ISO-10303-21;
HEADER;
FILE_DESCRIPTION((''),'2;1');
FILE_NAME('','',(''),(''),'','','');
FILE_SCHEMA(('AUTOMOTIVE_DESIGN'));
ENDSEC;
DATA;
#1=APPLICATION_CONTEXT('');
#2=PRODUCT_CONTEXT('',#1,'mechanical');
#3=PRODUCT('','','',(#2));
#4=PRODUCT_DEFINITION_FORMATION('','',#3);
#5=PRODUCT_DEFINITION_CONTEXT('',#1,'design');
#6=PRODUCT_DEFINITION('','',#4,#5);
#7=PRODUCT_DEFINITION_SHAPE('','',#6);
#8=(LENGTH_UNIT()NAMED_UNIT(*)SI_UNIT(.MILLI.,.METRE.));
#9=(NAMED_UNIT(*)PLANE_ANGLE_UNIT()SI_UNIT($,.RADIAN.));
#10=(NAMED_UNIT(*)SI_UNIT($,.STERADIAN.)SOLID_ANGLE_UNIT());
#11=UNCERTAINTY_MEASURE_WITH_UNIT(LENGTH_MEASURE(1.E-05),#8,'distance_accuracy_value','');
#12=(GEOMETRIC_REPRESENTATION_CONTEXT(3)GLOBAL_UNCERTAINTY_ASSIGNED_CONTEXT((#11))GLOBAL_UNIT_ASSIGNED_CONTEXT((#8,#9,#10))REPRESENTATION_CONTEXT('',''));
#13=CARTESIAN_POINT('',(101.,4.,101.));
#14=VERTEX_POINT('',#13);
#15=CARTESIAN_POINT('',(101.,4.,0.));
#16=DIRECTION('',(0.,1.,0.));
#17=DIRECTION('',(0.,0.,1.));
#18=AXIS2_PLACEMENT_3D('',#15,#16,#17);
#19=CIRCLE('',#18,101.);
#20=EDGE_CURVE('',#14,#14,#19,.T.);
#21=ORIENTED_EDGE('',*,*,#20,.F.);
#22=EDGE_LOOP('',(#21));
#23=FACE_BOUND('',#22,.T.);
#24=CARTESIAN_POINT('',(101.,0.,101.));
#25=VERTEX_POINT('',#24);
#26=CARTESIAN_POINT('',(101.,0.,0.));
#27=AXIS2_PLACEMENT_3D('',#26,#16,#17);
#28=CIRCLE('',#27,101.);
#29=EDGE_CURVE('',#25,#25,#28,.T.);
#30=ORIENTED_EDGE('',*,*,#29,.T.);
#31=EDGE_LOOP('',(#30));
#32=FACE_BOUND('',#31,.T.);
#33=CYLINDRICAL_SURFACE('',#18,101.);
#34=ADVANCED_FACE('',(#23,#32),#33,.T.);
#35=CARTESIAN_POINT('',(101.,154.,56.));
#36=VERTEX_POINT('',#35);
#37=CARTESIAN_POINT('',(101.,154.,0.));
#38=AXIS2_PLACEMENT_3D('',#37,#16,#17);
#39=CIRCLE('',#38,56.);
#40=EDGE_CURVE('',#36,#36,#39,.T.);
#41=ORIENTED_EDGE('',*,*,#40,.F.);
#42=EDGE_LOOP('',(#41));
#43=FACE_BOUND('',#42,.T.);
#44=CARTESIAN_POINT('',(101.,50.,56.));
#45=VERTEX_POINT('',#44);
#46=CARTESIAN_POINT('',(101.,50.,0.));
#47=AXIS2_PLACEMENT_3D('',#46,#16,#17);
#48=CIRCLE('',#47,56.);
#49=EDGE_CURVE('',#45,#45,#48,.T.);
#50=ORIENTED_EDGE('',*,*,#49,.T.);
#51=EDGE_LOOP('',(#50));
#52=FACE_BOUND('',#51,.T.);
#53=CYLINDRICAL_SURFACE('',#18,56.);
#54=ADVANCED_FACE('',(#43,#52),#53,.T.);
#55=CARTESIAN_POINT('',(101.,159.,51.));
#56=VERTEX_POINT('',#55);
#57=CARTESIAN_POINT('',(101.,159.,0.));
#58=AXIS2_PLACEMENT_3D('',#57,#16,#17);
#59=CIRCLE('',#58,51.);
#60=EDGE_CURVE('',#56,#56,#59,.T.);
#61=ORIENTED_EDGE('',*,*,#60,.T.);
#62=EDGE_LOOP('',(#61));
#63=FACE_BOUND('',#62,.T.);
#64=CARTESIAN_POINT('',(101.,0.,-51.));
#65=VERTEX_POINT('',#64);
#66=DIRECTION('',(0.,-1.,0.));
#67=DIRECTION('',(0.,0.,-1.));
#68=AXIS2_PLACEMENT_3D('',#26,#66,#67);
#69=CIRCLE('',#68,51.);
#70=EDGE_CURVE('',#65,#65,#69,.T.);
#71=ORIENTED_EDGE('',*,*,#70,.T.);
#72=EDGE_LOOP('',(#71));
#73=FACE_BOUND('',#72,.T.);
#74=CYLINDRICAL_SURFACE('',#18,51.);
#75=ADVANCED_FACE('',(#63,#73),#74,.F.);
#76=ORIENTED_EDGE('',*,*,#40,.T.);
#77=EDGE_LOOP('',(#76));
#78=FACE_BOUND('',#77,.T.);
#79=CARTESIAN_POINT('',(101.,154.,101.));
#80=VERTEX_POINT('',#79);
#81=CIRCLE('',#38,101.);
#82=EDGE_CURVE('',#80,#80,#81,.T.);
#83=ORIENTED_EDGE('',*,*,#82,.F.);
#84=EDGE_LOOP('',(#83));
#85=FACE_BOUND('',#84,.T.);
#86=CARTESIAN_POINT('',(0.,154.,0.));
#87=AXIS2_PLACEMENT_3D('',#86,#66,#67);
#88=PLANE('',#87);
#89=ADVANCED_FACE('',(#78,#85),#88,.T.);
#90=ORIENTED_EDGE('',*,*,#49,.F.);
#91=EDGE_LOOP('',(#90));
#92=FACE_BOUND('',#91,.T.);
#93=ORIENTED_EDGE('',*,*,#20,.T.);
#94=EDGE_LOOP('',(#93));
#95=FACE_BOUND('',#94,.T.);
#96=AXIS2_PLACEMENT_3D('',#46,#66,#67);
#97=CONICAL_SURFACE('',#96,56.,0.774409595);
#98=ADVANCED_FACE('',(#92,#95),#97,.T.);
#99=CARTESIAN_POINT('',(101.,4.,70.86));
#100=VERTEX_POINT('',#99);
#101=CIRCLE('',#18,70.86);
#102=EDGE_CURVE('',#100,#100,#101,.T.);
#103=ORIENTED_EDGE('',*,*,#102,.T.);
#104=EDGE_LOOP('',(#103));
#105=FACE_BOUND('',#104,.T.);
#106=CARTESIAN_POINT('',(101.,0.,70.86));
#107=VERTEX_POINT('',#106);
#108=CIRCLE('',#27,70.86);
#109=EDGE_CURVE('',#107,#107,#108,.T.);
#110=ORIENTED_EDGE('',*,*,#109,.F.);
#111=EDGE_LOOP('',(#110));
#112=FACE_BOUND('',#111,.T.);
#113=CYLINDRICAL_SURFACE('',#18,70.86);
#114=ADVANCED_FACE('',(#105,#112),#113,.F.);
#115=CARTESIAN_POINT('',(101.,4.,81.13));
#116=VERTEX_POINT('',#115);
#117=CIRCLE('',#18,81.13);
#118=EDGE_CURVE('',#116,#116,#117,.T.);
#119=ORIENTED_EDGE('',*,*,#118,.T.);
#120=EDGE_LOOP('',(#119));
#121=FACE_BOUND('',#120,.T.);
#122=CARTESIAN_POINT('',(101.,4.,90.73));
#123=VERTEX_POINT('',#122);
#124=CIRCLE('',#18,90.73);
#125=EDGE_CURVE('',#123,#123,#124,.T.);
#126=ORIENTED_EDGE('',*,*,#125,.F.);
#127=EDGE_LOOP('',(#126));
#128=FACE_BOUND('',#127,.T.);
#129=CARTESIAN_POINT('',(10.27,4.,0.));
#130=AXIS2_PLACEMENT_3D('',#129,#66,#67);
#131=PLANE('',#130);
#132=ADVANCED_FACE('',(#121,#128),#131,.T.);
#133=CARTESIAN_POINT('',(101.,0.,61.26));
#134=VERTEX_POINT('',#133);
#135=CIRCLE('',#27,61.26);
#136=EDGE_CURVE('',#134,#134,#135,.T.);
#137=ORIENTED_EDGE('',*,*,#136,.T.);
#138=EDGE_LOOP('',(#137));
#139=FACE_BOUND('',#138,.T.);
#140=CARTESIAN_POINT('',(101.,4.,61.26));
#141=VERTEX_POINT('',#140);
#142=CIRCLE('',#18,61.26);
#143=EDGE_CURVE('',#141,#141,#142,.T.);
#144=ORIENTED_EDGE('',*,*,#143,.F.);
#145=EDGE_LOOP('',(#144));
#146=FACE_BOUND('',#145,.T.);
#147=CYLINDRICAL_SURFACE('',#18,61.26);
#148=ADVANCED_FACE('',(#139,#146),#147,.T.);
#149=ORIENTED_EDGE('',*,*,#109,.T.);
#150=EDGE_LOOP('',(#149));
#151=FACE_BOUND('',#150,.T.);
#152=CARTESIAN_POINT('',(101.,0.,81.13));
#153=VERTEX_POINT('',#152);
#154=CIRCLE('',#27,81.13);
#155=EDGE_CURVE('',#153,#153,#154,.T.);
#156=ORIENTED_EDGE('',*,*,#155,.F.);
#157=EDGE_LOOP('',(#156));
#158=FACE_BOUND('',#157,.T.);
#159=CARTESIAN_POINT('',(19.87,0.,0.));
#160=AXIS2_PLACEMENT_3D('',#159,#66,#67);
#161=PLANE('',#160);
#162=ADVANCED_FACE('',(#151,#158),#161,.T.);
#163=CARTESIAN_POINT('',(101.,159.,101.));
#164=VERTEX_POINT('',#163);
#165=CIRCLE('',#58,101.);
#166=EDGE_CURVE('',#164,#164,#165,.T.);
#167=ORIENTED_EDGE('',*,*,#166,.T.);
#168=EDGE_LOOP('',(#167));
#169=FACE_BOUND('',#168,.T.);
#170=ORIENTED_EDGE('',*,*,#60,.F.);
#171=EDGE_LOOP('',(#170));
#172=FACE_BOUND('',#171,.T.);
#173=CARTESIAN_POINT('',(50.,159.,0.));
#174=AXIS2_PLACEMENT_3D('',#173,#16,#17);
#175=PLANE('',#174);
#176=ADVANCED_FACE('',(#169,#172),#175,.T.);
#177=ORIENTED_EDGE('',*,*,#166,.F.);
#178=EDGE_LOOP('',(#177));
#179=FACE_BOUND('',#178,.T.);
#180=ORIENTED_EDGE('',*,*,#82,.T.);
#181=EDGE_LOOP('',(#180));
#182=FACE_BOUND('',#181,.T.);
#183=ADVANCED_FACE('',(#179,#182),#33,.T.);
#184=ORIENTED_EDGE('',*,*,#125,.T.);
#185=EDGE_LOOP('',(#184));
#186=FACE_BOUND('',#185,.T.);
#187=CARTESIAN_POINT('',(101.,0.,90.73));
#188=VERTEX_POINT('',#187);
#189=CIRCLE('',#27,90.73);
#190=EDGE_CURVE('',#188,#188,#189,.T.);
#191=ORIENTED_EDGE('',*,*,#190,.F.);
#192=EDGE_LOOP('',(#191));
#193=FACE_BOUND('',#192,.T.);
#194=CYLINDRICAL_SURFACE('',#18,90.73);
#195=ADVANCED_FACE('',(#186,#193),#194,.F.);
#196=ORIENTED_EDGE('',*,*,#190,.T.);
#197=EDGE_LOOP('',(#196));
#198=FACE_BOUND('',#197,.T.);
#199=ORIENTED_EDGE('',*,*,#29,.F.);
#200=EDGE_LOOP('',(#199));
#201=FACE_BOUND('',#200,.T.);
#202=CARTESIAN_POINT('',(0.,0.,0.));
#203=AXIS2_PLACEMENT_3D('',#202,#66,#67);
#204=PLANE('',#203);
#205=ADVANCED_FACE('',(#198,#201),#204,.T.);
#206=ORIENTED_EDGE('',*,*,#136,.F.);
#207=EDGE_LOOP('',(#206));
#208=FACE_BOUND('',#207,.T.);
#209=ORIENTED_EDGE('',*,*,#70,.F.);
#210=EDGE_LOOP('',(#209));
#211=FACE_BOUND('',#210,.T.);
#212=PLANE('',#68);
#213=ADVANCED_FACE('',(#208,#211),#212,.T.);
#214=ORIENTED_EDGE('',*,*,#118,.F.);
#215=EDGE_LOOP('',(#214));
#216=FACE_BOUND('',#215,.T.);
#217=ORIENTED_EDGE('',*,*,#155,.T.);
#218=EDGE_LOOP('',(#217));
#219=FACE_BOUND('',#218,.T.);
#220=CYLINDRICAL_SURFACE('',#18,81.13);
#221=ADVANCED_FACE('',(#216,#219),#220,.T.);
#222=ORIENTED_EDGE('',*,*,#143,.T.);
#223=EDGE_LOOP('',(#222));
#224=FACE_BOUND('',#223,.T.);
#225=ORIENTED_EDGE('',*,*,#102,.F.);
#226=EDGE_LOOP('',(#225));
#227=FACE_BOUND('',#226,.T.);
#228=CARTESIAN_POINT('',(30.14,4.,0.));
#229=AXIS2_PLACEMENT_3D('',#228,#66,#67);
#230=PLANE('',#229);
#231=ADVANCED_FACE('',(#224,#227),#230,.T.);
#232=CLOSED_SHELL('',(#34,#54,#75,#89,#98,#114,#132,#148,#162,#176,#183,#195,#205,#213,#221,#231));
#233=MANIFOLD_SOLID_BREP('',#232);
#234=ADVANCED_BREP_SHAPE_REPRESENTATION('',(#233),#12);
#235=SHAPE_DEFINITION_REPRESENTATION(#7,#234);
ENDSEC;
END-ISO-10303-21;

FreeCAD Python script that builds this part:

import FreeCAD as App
import Part
import Sketcher
from FreeCAD import Vector
Q = App.Units.Quantity


def add_polygon(sketch, points):
    """Adds a closed chain of lines whose ends are joined by coincident constraints."""
    first, n = sketch.GeometryCount, len(points)
    for a, b in zip(points, points[1:] + points[:1]):
        sketch.addGeometry(Part.LineSegment(App.Vector(*a, 0), App.Vector(*b, 0)), False)
    for i in range(n):
        sketch.addConstraint(Sketcher.Constraint("Coincident", first + i, 2, first + (i + 1) % n, 1))

doc = App.newDocument("Part")
body = doc.addObject("PartDesign::Body", "Body")

# Sketch on XY plane
sketch1 = body.newObject("Sketcher::SketchObject", "Sketch")
sketch1.AttachmentSupport = (doc.getObject("XY_Plane"), [""])
sketch1.MapMode = "FlatFace"
add_polygon(sketch1, [(50, 159), (0, 159), (0, 154), (45, 154), (45, 50), (0, 4), (0, 0), (10.3, 0), (10.3, 4), (19.9, 4), (19.9, 0), (30.1, 0), (30.1, 4), (39.7, 4), (39.7, 0), (101, 0), (101, 4), (50, 4)])  # lines 0-17
sketch1.addGeometry(Part.LineSegment(Vector(101, 159, 0), Vector(101, 0, 0)), True)  # axis
sketch1.addConstraint([
    Sketcher.Constraint("Horizontal", 0),
    Sketcher.Constraint("Vertical", 1),
    Sketcher.Constraint("Horizontal", 2),
    Sketcher.Constraint("Vertical", 3),
    Sketcher.Constraint("Vertical", 5),
    Sketcher.Constraint("Horizontal", 6),
    Sketcher.Constraint("Vertical", 7),
    Sketcher.Constraint("Horizontal", 8),
    Sketcher.Constraint("Vertical", 9),
    Sketcher.Constraint("Horizontal", 10),
    Sketcher.Constraint("Vertical", 11),
    Sketcher.Constraint("Horizontal", 12),
    Sketcher.Constraint("Vertical", 13),
    Sketcher.Constraint("Horizontal", 14),
    Sketcher.Constraint("Vertical", 15),
    Sketcher.Constraint("Horizontal", 16),
    Sketcher.Constraint("Vertical", 17),
    Sketcher.Constraint("Vertical", 18),
    Sketcher.Constraint("Coincident", 5, 2, -1, 1),
    Sketcher.Constraint("Coincident", 18, 2, 14, 2),
    Sketcher.Constraint("PointOnObject", 0, 2, -2),
    Sketcher.Constraint("PointOnObject", 9, 2, -1),
    Sketcher.Constraint("PointOnObject", 13, 2, -1),
    Sketcher.Constraint("Horizontal", 4, 2, 7, 2),
    Sketcher.Constraint("Horizontal", 8, 2, 11, 2),
    Sketcher.Constraint("Horizontal", 12, 2, 15, 2),
    Sketcher.Constraint("Horizontal", 17, 2, 18, 1),
    Sketcher.Constraint("Equal", 6, 10),
    Sketcher.Constraint("Equal", 8, 12),
    Sketcher.Constraint("DistanceX", 0, 2, 0, 1, Q("50 mm")),
    Sketcher.Constraint("DistanceX", 2, 1, 2, 2, Q("45 mm")),
    Sketcher.Constraint("DistanceX", 16, 2, 16, 1, Q("51 mm")),
    Sketcher.Constraint("DistanceY", 1, 2, 1, 1, Q("5 mm")),
    Sketcher.Constraint("DistanceY", 3, 2, 3, 1, Q("104 mm")),
    Sketcher.Constraint("DistanceY", 5, 2, 5, 1, Q("4 mm")),
    Sketcher.Constraint("DistanceY", 17, 1, 17, 2, Q("155 mm")),
    Sketcher.Constraint("DistanceX", 8, 1, 8, 2, Q("9.6 mm")),
    Sketcher.Constraint("DistanceX", 6, 1, 6, 2, Q("10.27 mm")),
])
revolution = body.newObject("PartDesign::Revolution", "Revolution")
revolution.Profile = sketch1
revolution.ReferenceAxis = (sketch1, ["Axis0"])
revolution.Angle = 360

# Sketch on XZ plane
sketch2 = body.newObject("Sketcher::SketchObject", "Sketch001")
sketch2.AttachmentSupport = (doc.getObject("XZ_Plane"), [""])
sketch2.MapMode = "FlatFace"
sketch2.addGeometry(Part.Circle(Vector(101, 0, 0), Vector(0, 0, 1), 51), False)
sketch2.addConstraint([
    Sketcher.Constraint("PointOnObject", 0, 3, -1),
    Sketcher.Constraint("Diameter", 0, Q("102 mm")),
    Sketcher.Constraint("DistanceX", -1, 1, 0, 3, Q("101 mm")),
])
pocket1 = body.newObject("PartDesign::Pocket", "Pocket")
pocket1.Profile = sketch2
pocket1.Type = "UpToFirst"

doc.recompute()
